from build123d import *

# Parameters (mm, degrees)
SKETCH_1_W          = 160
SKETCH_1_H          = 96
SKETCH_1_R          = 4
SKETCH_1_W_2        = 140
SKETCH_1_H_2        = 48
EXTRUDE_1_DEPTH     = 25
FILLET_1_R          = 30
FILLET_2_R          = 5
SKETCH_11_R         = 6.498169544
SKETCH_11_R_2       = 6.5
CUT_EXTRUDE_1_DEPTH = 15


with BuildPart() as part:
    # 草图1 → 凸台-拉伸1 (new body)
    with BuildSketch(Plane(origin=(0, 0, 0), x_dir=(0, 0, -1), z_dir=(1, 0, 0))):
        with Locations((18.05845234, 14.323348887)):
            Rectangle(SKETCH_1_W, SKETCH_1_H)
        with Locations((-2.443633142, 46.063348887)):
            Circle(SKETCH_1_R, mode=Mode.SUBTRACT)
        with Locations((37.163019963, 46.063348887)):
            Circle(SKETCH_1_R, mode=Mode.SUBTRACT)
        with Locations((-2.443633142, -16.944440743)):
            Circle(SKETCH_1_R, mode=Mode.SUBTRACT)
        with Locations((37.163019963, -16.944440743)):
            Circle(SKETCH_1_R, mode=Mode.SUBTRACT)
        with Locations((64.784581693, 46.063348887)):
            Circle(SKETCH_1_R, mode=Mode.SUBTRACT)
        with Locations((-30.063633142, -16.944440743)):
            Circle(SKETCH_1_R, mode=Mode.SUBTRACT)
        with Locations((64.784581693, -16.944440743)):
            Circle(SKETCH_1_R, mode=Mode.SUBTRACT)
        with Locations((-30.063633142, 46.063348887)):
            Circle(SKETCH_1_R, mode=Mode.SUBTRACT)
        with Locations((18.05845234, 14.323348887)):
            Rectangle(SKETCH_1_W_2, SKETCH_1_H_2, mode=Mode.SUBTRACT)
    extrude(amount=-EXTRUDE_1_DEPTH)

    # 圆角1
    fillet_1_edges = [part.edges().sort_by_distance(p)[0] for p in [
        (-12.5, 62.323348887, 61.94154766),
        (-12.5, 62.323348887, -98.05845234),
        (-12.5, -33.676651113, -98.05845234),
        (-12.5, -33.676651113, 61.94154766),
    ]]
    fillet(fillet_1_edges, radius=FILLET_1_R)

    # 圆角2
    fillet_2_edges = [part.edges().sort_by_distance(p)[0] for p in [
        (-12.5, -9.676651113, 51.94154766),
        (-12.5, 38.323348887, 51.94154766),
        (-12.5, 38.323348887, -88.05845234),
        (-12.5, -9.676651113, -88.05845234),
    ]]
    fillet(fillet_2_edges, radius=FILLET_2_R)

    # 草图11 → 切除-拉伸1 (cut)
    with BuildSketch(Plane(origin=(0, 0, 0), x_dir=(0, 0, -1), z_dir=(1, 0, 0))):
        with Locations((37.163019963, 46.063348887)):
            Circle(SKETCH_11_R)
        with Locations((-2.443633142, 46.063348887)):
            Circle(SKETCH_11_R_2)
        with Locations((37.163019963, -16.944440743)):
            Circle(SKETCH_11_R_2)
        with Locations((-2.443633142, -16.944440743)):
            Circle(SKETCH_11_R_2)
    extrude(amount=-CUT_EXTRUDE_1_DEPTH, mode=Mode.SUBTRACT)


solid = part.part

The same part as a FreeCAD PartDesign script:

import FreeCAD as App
import Part
import Sketcher


def edges_at(feature, points):
    """Names of the edges that pass closest to the given points."""
    edges = feature.Shape.Edges
    near = lambda p: min(range(len(edges)), key=lambda i: edges[i].distToShape(Part.Vertex(*p))[0])
    return sorted({f"Edge{near(p) + 1}" for p in points})


def add_polygon(sketch, points):
    """Adds a closed chain of lines whose ends are joined by coincident constraints."""
    first, n = sketch.GeometryCount, len(points)
    for a, b in zip(points, points[1:] + points[:1]):
        sketch.addGeometry(Part.LineSegment(App.Vector(*a, 0), App.Vector(*b, 0)), False)
    for i in range(n):
        sketch.addConstraint(Sketcher.Constraint("Coincident", first + i, 2, first + (i + 1) % n, 1))

doc = App.newDocument("Part")
body = doc.addObject("PartDesign::Body", "Body")

sketch1 = doc.addObject("Sketcher::SketchObject", "Sketch")
body.addObject(sketch1)
sketch1.AttachmentSupport = (doc.YZ_Plane, [""])
sketch1.MapMode = "FlatFace"
add_polygon(sketch1, [(62.323349, 61.941548), (-33.676651, 61.941548), (-33.676651, -98.058452), (62.323349, -98.058452)])
sketch1.addGeometry(Part.Circle(App.Vector(-16.944441, 30.063633, 0), App.Vector(0, 0, 1), 4), False)
sketch1.addGeometry(Part.Circle(App.Vector(-16.944441, 2.443633, 0), App.Vector(0, 0, 1), 4), False)
sketch1.addGeometry(Part.Circle(App.Vector(-16.944441, -37.16302, 0), App.Vector(0, 0, 1), 4), False)
sketch1.addGeometry(Part.Circle(App.Vector(-16.944441, -64.784582, 0), App.Vector(0, 0, 1), 4), False)
add_polygon(sketch1, [(-9.676651, -88.058452), (-9.676651, 51.941548), (38.323349, 51.941548), (38.323349, -88.058452)])
sketch1.addGeometry(Part.Circle(App.Vector(46.063349, 30.063633, 0), App.Vector(0, 0, 1), 4), False)
sketch1.addGeometry(Part.Circle(App.Vector(46.063349, 2.443633, 0), App.Vector(0, 0, 1), 4), False)
sketch1.addGeometry(Part.Circle(App.Vector(46.063349, -37.16302, 0), App.Vector(0, 0, 1), 4), False)
sketch1.addGeometry(Part.Circle(App.Vector(46.063349, -64.784582, 0), App.Vector(0, 0, 1), 4), False)
sketch1.addConstraint([
    Sketcher.Constraint("Horizontal", 0),
    Sketcher.Constraint("Vertical", 1),
    Sketcher.Constraint("Horizontal", 2),
    Sketcher.Constraint("Vertical", 3),
    Sketcher.Constraint("Vertical", 8),
    Sketcher.Constraint("Horizontal", 9),
    Sketcher.Constraint("Vertical", 10),
    Sketcher.Constraint("Horizontal", 11),
    Sketcher.Constraint("Equal", 4, 5),
    Sketcher.Constraint("Equal", 5, 6),
    Sketcher.Constraint("Equal", 6, 7),
    Sketcher.Constraint("Equal", 7, 12),
    Sketcher.Constraint("Equal", 12, 13),
    Sketcher.Constraint("Equal", 13, 14),
    Sketcher.Constraint("Equal", 14, 15),
    Sketcher.Constraint("Horizontal", 4, 3, 12, 3),
    Sketcher.Constraint("Horizontal", 5, 3, 13, 3),
    Sketcher.Constraint("Horizontal", 6, 3, 14, 3),
    Sketcher.Constraint("Horizontal", 7, 3, 15, 3),
    Sketcher.Constraint("Vertical", 4, 3, 5, 3),
    Sketcher.Constraint("Vertical", 5, 3, 6, 3),
    Sketcher.Constraint("Vertical", 6, 3, 7, 3),
    Sketcher.Constraint("Vertical", 12, 3, 13, 3),
    Sketcher.Constraint("Vertical", 13, 3, 14, 3),
    Sketcher.Constraint("Vertical", 14, 3, 15, 3),
    Sketcher.Constraint("Diameter", 4, 8.0),
    Sketcher.Constraint("DistanceX", 0, 2, 0, 1, 96.0),
    Sketcher.Constraint("DistanceX", 9, 1, 9, 2, 48.0),
    Sketcher.Constraint("DistanceY", 1, 2, 1, 1, 160.0),
    Sketcher.Constraint("DistanceY", 8, 1, 8, 2, 140.0),
    Sketcher.Constraint("DistanceX", 0, 2, 8, 2, 24.0),
    Sketcher.Constraint("DistanceY", 8, 2, 0, 2, 10.0),
    Sketcher.Constraint("DistanceY", 5, 3, 4, 3, 27.62),
    Sketcher.Constraint("DistanceX", 0, 2, 12, 3, 79.74),
    Sketcher.Constraint("DistanceX", 4, 3, -1, 1, 16.944441),
    Sketcher.Constraint("DistanceY", 6, 3, -1, 1, 37.16302),
    Sketcher.Constraint("DistanceY", 7, 3, -1, 1, 64.784582),
    Sketcher.Constraint("DistanceX", -1, 1, 12, 3, 46.063349),
    Sketcher.Constraint("DistanceY", 1, 2, 7, 3, 33.273871),
    Sketcher.Constraint("DistanceY", -1, 1, 4, 3, 30.063633),
])
pad1 = doc.addObject("PartDesign::Pad", "Pad")
body.addObject(pad1)
pad1.Profile = sketch1
pad1.Length = 25
pad1.Reversed = True
doc.recompute()

fillet = doc.addObject("PartDesign::Fillet", "Fillet")
body.addObject(fillet)
fillet.Base = (pad1, edges_at(pad1, [
    (-12.5, 62.323, 61.942),
    (-12.5, 62.323, -98.058),
    (-12.5, -33.677, -98.058),
    (-12.5, -33.677, 61.942),
]))
fillet.Radius = 30
doc.recompute()

fillet2 = doc.addObject("PartDesign::Fillet", "Fillet001")
body.addObject(fillet2)
fillet2.Base = (fillet, edges_at(fillet, [
    (-12.5, -9.677, 51.942),
    (-12.5, 38.323, 51.942),
    (-12.5, 38.323, -88.058),
    (-12.5, -9.677, -88.058),
]))
fillet2.Radius = 5

sketch2 = doc.addObject("Sketcher::SketchObject", "Sketch001")
body.addObject(sketch2)
sketch2.AttachmentSupport = (doc.YZ_Plane, [""])
sketch2.MapMode = "FlatFace"
sketch2.addGeometry([
    Part.Circle(App.Vector(46.063349, -37.16302, 0), App.Vector(0, 0, 1), 6.49817),
    Part.Circle(App.Vector(46.063349, 2.443633, 0), App.Vector(0, 0, 1), 6.5),
    Part.Circle(App.Vector(-16.944441, -37.16302, 0), App.Vector(0, 0, 1), 6.5),
    Part.Circle(App.Vector(-16.944441, 2.443633, 0), App.Vector(0, 0, 1), 6.5),
], False)
sketch2.addConstraint([
    Sketcher.Constraint("Equal", 1, 2),
    Sketcher.Constraint("Equal", 2, 3),
    Sketcher.Constraint("Horizontal", 0, 3, 2, 3),
    Sketcher.Constraint("Horizontal", 1, 3, 3, 3),
    Sketcher.Constraint("Vertical", 0, 3, 1, 3),
    Sketcher.Constraint("Vertical", 2, 3, 3, 3),
    Sketcher.Constraint("Diameter", 1, 13.0),
    Sketcher.Constraint("Diameter", 0, 12.996339),
    Sketcher.Constraint("DistanceX", -1, 1, 0, 3, 46.063349),
    Sketcher.Constraint("DistanceY", 0, 3, -1, 1, 37.16302),
    Sketcher.Constraint("DistanceX", 2, 3, -1, 1, 16.944441),
    Sketcher.Constraint("DistanceY", -1, 1, 1, 3, 2.443633),
])
pocket1 = doc.addObject("PartDesign::Pocket", "Pocket")
body.addObject(pocket1)
pocket1.Profile = sketch2
pocket1.Length = 15

doc.recompute()
